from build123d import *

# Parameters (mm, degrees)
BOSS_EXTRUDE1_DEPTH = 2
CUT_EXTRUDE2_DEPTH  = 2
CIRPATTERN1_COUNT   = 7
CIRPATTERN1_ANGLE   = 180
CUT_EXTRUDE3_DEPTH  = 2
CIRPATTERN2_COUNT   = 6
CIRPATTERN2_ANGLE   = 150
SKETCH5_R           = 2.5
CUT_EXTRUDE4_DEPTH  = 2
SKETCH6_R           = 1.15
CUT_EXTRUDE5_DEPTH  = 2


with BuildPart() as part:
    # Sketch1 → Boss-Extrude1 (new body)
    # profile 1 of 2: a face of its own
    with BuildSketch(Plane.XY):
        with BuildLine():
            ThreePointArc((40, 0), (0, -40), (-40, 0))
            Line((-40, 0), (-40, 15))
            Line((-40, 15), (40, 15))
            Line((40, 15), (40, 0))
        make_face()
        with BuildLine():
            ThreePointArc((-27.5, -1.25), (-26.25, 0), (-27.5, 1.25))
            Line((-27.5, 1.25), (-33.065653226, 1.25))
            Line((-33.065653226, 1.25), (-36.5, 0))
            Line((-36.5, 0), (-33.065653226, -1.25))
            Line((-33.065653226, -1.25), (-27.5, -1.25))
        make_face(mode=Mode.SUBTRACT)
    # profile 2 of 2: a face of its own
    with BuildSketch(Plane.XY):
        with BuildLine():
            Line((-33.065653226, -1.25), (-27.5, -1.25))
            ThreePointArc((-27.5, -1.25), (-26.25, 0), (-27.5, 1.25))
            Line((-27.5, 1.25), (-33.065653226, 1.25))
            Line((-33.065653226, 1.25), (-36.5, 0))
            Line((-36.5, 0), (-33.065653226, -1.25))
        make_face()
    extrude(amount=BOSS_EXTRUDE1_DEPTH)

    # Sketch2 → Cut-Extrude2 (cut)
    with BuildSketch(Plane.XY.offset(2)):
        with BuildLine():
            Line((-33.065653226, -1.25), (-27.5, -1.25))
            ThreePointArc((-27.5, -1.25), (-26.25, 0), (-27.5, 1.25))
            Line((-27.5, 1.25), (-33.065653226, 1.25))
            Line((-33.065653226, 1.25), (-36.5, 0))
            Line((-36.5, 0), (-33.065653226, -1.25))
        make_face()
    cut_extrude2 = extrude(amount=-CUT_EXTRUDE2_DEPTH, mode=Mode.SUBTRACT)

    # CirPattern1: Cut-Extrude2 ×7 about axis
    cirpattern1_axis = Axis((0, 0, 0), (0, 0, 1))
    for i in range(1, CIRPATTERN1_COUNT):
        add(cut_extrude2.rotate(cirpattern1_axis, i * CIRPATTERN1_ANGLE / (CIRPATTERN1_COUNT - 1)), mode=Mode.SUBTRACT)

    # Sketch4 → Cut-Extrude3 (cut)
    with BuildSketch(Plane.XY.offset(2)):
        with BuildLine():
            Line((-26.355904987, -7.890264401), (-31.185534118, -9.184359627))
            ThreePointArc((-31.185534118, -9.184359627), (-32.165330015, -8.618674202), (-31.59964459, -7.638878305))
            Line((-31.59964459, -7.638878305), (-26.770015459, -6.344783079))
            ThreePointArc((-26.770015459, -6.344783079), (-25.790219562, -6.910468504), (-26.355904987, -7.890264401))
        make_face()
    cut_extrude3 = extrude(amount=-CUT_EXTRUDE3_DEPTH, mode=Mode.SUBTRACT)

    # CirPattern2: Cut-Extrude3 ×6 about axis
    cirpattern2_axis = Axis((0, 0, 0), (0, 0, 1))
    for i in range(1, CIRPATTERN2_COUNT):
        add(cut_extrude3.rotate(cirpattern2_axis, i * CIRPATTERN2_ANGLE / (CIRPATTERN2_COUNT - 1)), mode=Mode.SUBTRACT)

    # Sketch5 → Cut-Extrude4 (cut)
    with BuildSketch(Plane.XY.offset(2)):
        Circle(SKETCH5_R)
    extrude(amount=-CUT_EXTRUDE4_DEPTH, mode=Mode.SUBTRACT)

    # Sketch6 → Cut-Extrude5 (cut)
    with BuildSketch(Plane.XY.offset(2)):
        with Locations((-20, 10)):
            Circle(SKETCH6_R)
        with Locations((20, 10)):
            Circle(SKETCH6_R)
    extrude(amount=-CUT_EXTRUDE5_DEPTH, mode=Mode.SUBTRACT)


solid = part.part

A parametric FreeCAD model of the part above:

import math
import FreeCAD as App
import Part
import Sketcher
from FreeCAD import Vector
Q = App.Units.Quantity

doc = App.newDocument("Part")
body = doc.addObject("PartDesign::Body", "Body")

# Sketch on XY plane
sketch1 = body.newObject("Sketcher::SketchObject", "Sketch")
sketch1.AttachmentSupport = (doc.getObject("XY_Plane"), [""])
sketch1.MapMode = "FlatFace"
sketch1.addGeometry(Part.ArcOfCircle(Part.Circle(Vector(0, 0, 0), Vector(0, 0, 1), 40), math.radians(180), math.radians(360)), False)
sketch1.addGeometry(Part.LineSegment(Vector(40, 0, 0), Vector(40, 15, 0)), False)
sketch1.addGeometry(Part.LineSegment(Vector(40, 15, 0), Vector(-40, 15, 0)), False)
sketch1.addGeometry(Part.LineSegment(Vector(-40, 15, 0), Vector(-40, 0, 0)), False)
sketch1.addConstraint(Sketcher.Constraint("Tangent", 0, 2, 1, 1))
sketch1.addConstraint(Sketcher.Constraint("Coincident", 1, 2, 2, 1))
sketch1.addConstraint(Sketcher.Constraint("Coincident", 2, 2, 3, 1))
sketch1.addConstraint(Sketcher.Constraint("Tangent", 3, 2, 0, 1))
sketch1.addConstraint(Sketcher.Constraint("Vertical", 1))
sketch1.addConstraint(Sketcher.Constraint("Horizontal", 2))
sketch1.addConstraint(Sketcher.Constraint("Vertical", 3))
sketch1.addConstraint(Sketcher.Constraint("Coincident", 0, 3, -1, 1))
sketch1.addConstraint(Sketcher.Constraint("Radius", 0, 40.0))
sketch1.addConstraint(Sketcher.Constraint("DistanceY", 1, 1, 1, 2, 15.0))
pad1 = body.newObject("PartDesign::Pad", "Pad")
pad1.Profile = sketch1
pad1.Length = 2

# Sketch on XY plane
sketch2 = body.newObject("Sketcher::SketchObject", "Sketch001")
sketch2.AttachmentSupport = (doc.getObject("XY_Plane"), [""])
sketch2.MapMode = "FlatFace"
sketch2.AttachmentOffset = App.Placement(Vector(0, 0, 2), App.Rotation())
sketch2.addGeometry(Part.LineSegment(Vector(-33.1, -1.2, 0), Vector(-27.5, -1.2, 0)), False)
sketch2.addGeometry(Part.ArcOfCircle(Part.Circle(Vector(-27.5, 0, 0), Vector(0, 0, 1), 1.2), math.radians(-90), math.radians(90)), False)
sketch2.addGeometry(Part.LineSegment(Vector(-27.5, 1.2, 0), Vector(-33.1, 1.2, 0)), False)
sketch2.addGeometry(Part.LineSegment(Vector(-33.1, 1.2, 0), Vector(-36.5, 0, 0)), False)
sketch2.addGeometry(Part.LineSegment(Vector(-36.5, 0, 0), Vector(-33.1, -1.2, 0)), False)
sketch2.addConstraint(Sketcher.Constraint("Tangent", 0, 2, 1, 1))
sketch2.addConstraint(Sketcher.Constraint("Tangent", 1, 2, 2, 1))
sketch2.addConstraint(Sketcher.Constraint("Coincident", 2, 2, 3, 1))
sketch2.addConstraint(Sketcher.Constraint("Coincident", 3, 2, 4, 1))
sketch2.addConstraint(Sketcher.Constraint("Coincident", 4, 2, 0, 1))
sketch2.addConstraint(Sketcher.Constraint("Horizontal", 0))
sketch2.addConstraint(Sketcher.Constraint("Horizontal", 2))
sketch2.addConstraint(Sketcher.Constraint("Symmetric", 2, 2, 4, 2, -1))
sketch2.addConstraint(Sketcher.Constraint("PointOnObject", 3, 2, -1))
sketch2.addConstraint(Sketcher.Constraint("Angle", 3, Q("-160 deg")))
sketch2.addConstraint(Sketcher.Constraint("Radius", 1, 1.25))
sketch2.addConstraint(Sketcher.Constraint("DistanceX", 3, 2, 1, 3, 9.0))
sketch2.addConstraint(Sketcher.Constraint("DistanceX", 1, 3, -1, 1, 27.5))
pocket1 = body.newObject("PartDesign::Pocket", "Pocket")
pocket1.Profile = sketch2
pocket1.Length = 2
doc.recompute()

polarpattern = body.newObject("PartDesign::PolarPattern", "PolarPattern")
polarpattern.Originals = [pocket1]
polarpattern.Axis = (doc.getObject("Z_Axis"), [""])
polarpattern.Angle = 180
polarpattern.Occurrences = 7
body.Tip = polarpattern

# Sketch on XY plane
sketch3 = body.newObject("Sketcher::SketchObject", "Sketch002")
sketch3.AttachmentSupport = (doc.getObject("XY_Plane"), [""])
sketch3.MapMode = "FlatFace"
sketch3.AttachmentOffset = App.Placement(Vector(0, 0, 2), App.Rotation())
sketch3.addGeometry(Part.LineSegment(Vector(-31.2, -9.2, 0), Vector(-26.4, -7.9, 0)), False)
sketch3.addGeometry(Part.ArcOfCircle(Part.Circle(Vector(-26.6, -7.1, 0), Vector(0, 0, 1), 0.8), math.radians(-75), math.radians(105)), False)
sketch3.addGeometry(Part.LineSegment(Vector(-26.8, -6.3, 0), Vector(-31.6, -7.6, 0)), False)
sketch3.addGeometry(Part.ArcOfCircle(Part.Circle(Vector(-31.4, -8.4, 0), Vector(0, 0, 1), 0.8), math.radians(105), math.radians(285)), False)
sketch3.addConstraint(Sketcher.Constraint("Tangent", 0, 2, 1, 1))
sketch3.addConstraint(Sketcher.Constraint("Tangent", 1, 2, 2, 1))
sketch3.addConstraint(Sketcher.Constraint("Tangent", 2, 2, 3, 1))
sketch3.addConstraint(Sketcher.Constraint("Tangent", 3, 2, 0, 1))
sketch3.addConstraint(Sketcher.Constraint("Equal", 1, 3))
sketch3.addConstraint(Sketcher.Constraint("Radius", 1, 0.8))
sketch3.addConstraint(Sketcher.Constraint("Angle", 0, Q("15 deg")))
sketch3.addConstraint(Sketcher.Constraint("Distance", 0, 5.0))
sketch3.addConstraint(Sketcher.Constraint("DistanceX", 1, 3, -1, 1, 26.56296))
sketch3.addConstraint(Sketcher.Constraint("DistanceY", 3, 3, -1, 1, 8.411619))
pocket2 = body.newObject("PartDesign::Pocket", "Pocket001")
pocket2.Profile = sketch3
pocket2.Length = 2
doc.recompute()

polarpattern2 = body.newObject("PartDesign::PolarPattern", "PolarPattern001")
polarpattern2.Originals = [pocket2]
polarpattern2.Axis = (doc.getObject("Z_Axis"), [""])
polarpattern2.Angle = 150
polarpattern2.Occurrences = 6
body.Tip = polarpattern2

# Sketch on XY plane
sketch4 = body.newObject("Sketcher::SketchObject", "Sketch003")
sketch4.AttachmentSupport = (doc.getObject("XY_Plane"), [""])
sketch4.MapMode = "FlatFace"
sketch4.AttachmentOffset = App.Placement(Vector(0, 0, 2), App.Rotation())
sketch4.addGeometry(Part.Circle(Vector(0, 0, 0), Vector(0, 0, 1), 2.5), False)
sketch4.addConstraint(Sketcher.Constraint("Coincident", 0, 3, -1, 1))
sketch4.addConstraint(Sketcher.Constraint("Diameter", 0, 5.0))
pocket3 = body.newObject("PartDesign::Pocket", "Pocket002")
pocket3.Profile = sketch4
pocket3.Length = 2

# Sketch on XY plane
sketch5 = body.newObject("Sketcher::SketchObject", "Sketch004")
sketch5.AttachmentSupport = (doc.getObject("XY_Plane"), [""])
sketch5.MapMode = "FlatFace"
sketch5.AttachmentOffset = App.Placement(Vector(0, 0, 2), App.Rotation())
sketch5.addGeometry(Part.Circle(Vector(-20, 10, 0), Vector(0, 0, 1), 1.1), False)
sketch5.addGeometry(Part.Circle(Vector(20, 10, 0), Vector(0, 0, 1), 1.1), False)
sketch5.addConstraint(Sketcher.Constraint("Equal", 0, 1))
sketch5.addConstraint(Sketcher.Constraint("Symmetric", 0, 3, 1, 3, -2))
sketch5.addConstraint(Sketcher.Constraint("Diameter", 0, 2.3))
sketch5.addConstraint(Sketcher.Constraint("DistanceX", 0, 3, -1, 1, 20.0))
sketch5.addConstraint(Sketcher.Constraint("DistanceY", -1, 1, 0, 3, 10.0))
pocket4 = body.newObject("PartDesign::Pocket", "Pocket003")
pocket4.Profile = sketch5
pocket4.Length = 2

doc.recompute()
